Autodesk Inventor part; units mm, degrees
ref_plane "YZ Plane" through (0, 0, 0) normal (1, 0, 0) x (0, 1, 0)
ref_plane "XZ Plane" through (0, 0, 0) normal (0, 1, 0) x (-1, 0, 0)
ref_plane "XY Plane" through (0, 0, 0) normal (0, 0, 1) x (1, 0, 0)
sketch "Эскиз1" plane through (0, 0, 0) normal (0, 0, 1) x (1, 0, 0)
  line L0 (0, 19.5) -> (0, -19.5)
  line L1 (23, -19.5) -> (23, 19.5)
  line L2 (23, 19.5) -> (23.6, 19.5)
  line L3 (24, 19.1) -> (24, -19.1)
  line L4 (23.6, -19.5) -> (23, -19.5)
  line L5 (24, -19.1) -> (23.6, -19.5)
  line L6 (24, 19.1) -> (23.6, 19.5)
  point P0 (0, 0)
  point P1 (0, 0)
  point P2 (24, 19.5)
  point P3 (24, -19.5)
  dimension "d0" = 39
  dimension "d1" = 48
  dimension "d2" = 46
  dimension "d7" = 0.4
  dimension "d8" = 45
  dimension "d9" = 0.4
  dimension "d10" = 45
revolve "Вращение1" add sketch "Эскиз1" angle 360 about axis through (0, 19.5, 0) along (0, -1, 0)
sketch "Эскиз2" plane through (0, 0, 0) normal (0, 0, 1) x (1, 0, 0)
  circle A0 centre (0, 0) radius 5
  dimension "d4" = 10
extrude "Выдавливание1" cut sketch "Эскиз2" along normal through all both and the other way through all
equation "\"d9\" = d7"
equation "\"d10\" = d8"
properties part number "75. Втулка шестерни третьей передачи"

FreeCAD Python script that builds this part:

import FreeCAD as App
import Part
import Sketcher
from FreeCAD import Vector


def add_polygon(sketch, points):
    """Adds a closed chain of lines whose ends are joined by coincident constraints."""
    first, n = sketch.GeometryCount, len(points)
    for a, b in zip(points, points[1:] + points[:1]):
        sketch.addGeometry(Part.LineSegment(App.Vector(*a, 0), App.Vector(*b, 0)), False)
    for i in range(n):
        sketch.addConstraint(Sketcher.Constraint("Coincident", first + i, 2, first + (i + 1) % n, 1))

doc = App.newDocument("Part")
body = doc.addObject("PartDesign::Body", "Body")

sketch1 = body.newObject("Sketcher::SketchObject", "Sketch")
sketch1.AttachmentSupport = (doc.getObject("XY_Plane"), [""])
sketch1.MapMode = "FlatFace"
add_polygon(sketch1, [(23, 19.5), (23, -19.5), (23.6, -19.5), (24, -19.1), (24, 19.1), (23.6, 19.5)])
sketch1.addConstraint([
    Sketcher.Constraint("Vertical", 0),
    Sketcher.Constraint("Horizontal", 1),
    Sketcher.Constraint("Vertical", 3),
    Sketcher.Constraint("Horizontal", 5),
    Sketcher.Constraint("Symmetric", 1, 2, 4, 2, -1),
    Sketcher.Constraint("Perpendicular", 2, 4),
    Sketcher.Constraint("Equal", 2, 4),
    Sketcher.Constraint("DistanceY", 0, 2, 0, 1, 39.0),
    Sketcher.Constraint("DistanceX", 1, 2, 2, 2, 0.4),
    Sketcher.Constraint("DistanceX", 1, 1, 1, 2, 0.6),
    Sketcher.Constraint("DistanceX", -1, 1, 0, 2, 23.0),
])
revolution = body.newObject("PartDesign::Revolution", "Revolution")
revolution.Profile = sketch1
revolution.ReferenceAxis = (sketch1, ["V_Axis"])
revolution.Angle = 360

sketch2 = body.newObject("Sketcher::SketchObject", "Sketch001")
sketch2.AttachmentSupport = (doc.getObject("XY_Plane"), [""])
sketch2.MapMode = "FlatFace"
sketch2.addGeometry(Part.Circle(Vector(0, 0, 0), Vector(0, 0, 1), 5), False)
sketch2.addConstraint([
    Sketcher.Constraint("Coincident", 0, 3, -1, 1),
    Sketcher.Constraint("Diameter", 0, 10.0),
])
pocket1 = body.newObject("PartDesign::Pocket", "Pocket")
pocket1.Profile = sketch2
pocket1.Type = "ThroughAll"
pocket1.Midplane = True

doc.recompute()
